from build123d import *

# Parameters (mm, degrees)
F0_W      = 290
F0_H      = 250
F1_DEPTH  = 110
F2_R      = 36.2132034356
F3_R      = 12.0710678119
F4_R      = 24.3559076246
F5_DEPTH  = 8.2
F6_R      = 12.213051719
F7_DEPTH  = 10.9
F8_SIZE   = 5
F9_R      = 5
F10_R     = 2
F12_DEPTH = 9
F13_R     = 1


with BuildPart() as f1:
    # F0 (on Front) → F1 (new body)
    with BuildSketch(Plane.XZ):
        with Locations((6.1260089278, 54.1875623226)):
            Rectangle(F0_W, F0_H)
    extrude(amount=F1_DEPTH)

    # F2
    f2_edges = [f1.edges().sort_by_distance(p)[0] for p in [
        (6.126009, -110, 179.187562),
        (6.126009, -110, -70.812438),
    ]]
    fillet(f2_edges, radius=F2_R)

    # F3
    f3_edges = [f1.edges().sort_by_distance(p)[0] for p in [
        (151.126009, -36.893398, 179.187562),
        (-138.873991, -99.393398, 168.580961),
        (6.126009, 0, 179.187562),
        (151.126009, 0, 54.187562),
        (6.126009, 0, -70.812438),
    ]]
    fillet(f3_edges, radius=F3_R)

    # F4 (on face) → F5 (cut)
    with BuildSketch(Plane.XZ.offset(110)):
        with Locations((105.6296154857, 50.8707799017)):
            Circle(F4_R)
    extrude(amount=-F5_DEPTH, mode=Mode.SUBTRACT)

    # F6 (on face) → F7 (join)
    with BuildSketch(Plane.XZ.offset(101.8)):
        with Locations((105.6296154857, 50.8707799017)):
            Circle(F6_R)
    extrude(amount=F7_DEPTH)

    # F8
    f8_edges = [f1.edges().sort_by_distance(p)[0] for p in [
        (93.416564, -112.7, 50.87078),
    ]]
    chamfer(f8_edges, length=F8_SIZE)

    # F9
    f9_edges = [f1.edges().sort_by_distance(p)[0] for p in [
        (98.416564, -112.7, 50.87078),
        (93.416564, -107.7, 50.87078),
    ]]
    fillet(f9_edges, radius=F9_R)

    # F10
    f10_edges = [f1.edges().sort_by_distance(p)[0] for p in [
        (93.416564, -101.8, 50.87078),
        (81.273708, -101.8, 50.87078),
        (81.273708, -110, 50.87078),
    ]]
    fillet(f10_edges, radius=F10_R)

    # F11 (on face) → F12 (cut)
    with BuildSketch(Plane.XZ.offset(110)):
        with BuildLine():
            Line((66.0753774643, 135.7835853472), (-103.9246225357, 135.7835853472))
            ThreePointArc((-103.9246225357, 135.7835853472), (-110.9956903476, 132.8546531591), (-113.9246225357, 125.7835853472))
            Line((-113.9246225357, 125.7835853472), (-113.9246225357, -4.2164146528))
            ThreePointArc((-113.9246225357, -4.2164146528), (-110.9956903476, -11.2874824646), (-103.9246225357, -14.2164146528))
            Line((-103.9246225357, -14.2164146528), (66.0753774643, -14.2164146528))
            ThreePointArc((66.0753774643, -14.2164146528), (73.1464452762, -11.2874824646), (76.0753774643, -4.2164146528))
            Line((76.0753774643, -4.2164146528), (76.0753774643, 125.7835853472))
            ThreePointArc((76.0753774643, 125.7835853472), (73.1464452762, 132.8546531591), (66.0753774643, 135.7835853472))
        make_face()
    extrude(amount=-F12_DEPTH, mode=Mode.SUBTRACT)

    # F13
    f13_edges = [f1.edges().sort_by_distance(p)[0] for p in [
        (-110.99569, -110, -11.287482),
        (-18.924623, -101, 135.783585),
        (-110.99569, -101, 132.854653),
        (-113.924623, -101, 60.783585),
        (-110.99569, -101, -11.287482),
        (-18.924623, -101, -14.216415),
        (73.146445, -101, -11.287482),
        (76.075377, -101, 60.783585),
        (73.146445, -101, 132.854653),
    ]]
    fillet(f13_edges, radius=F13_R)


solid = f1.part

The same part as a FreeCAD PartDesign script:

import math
import FreeCAD as App
import Part
import Sketcher

V = App.Vector


def edges_at(feature, points):
    """Names of the edges that pass closest to the given points."""
    edges = feature.Shape.Edges
    near = lambda p: min(range(len(edges)), key=lambda i: edges[i].distToShape(Part.Vertex(*p))[0])
    return sorted({f"Edge{near(p) + 1}" for p in points})

doc = App.newDocument("Part")
params = doc.addObject("Spreadsheet::Sheet", "Params")
for row, (alias, value) in enumerate([
    ("sketch1_width", "290 mm"),
    ("sketch1_height", "250 mm"),
    ("pad1_length", "110 mm"),
    ("fillet_radius", "36.213203 mm"),
    ("fillet2_radius", "12.071068 mm"),
    ("pocket1_length", "8.2 mm"),
    ("pad2_length", "10.9 mm"),
    ("chamfer_size", "5 mm"),
    ("fillet3_radius", "5 mm"),
    ("fillet4_radius", "2 mm"),
    ("sketch4_radius", "10 mm"),
    ("sketch4_width", "170 mm"),
    ("sketch4_height", "130 mm"),
    ("pocket2_length", "9 mm"),
    ("fillet5_radius", "1 mm"),
], start=1):
    params.set(f"A{row}", alias)
    params.set(f"B{row}", "=" + value)
    params.setAlias(f"B{row}", alias)

body = doc.addObject("PartDesign::Body", "Body")

# Sketch on XZ plane
sketch1 = body.newObject("Sketcher::SketchObject", "Sketch")
sketch1.AttachmentSupport = (doc.getObject("XZ_Plane"), [""])
sketch1.MapMode = "FlatFace"
sketch1.addGeometry([
    Part.LineSegment(V(-139, 179, 0), V(-139, -71, 0)),
    Part.LineSegment(V(-139, -71, 0), V(151, -71, 0)),
    Part.LineSegment(V(151, -71, 0), V(151, 179, 0)),
    Part.LineSegment(V(151, 179, 0), V(-139, 179, 0)),
], False)
sketch1.addConstraint([
    Sketcher.Constraint("Coincident", 0, 2, 1, 1),
    Sketcher.Constraint("Coincident", 1, 2, 2, 1),
    Sketcher.Constraint("Coincident", 2, 2, 3, 1),
    Sketcher.Constraint("Coincident", 3, 2, 0, 1),
    Sketcher.Constraint("Vertical", 0),
    Sketcher.Constraint("Horizontal", 1),
    Sketcher.Constraint("Vertical", 2),
    Sketcher.Constraint("Horizontal", 3),
    Sketcher.Constraint("DistanceX", 1, 1, 1, 2, 290.0),
    Sketcher.Constraint("DistanceY", 0, 2, 0, 1, 250.0),
    Sketcher.Constraint("DistanceX", 0, 2, -1, 1, 138.873991),
    Sketcher.Constraint("DistanceY", 0, 2, -1, 1, 70.812438),
])
sketch1.setExpression("Constraints[8]", "Params.sketch1_width")
sketch1.setExpression("Constraints[9]", "Params.sketch1_height")
pad1 = body.newObject("PartDesign::Pad", "Pad")
pad1.Profile = sketch1
pad1.setExpression("Length", "Params.pad1_length")
doc.recompute()

fillet = body.newObject("PartDesign::Fillet", "Fillet")
fillet.Base = (pad1, edges_at(pad1, [(6.126, -110, 179.188), (6.126, -110, -70.812)]))
fillet.setExpression("Radius", "Params.fillet_radius")
doc.recompute()

fillet2 = body.newObject("PartDesign::Fillet", "Fillet001")
fillet2.Base = (fillet, edges_at(fillet, [
    (151.126, -36.893, 179.188),
    (-138.874, -99.393, 168.581),
    (6.126, 0, 179.188),
    (151.126, 0, 54.188),
    (6.126, 0, -70.812),
]))
fillet2.setExpression("Radius", "Params.fillet2_radius")

# Sketch on XZ plane
sketch2 = body.newObject("Sketcher::SketchObject", "Sketch001")
sketch2.AttachmentSupport = (doc.getObject("XZ_Plane"), [""])
sketch2.MapMode = "FlatFace"
sketch2.AttachmentOffset = App.Placement(V(0, 0, 110), App.Rotation())
sketch2.addGeometry(Part.Circle(V(106, 51, 0), V(0, 0, 1), 24), False)
sketch2.addConstraint([
    Sketcher.Constraint("Diameter", 0, 48.711815),
    Sketcher.Constraint("DistanceY", -1, 1, 0, 3, 50.87078),
    Sketcher.Constraint("DistanceX", -1, 1, 0, 3, 105.629615),
])
pocket1 = body.newObject("PartDesign::Pocket", "Pocket")
pocket1.Profile = sketch2
pocket1.setExpression("Length", "Params.pocket1_length")

# Sketch on XZ plane
sketch3 = body.newObject("Sketcher::SketchObject", "Sketch002")
sketch3.AttachmentSupport = (doc.getObject("XZ_Plane"), [""])
sketch3.MapMode = "FlatFace"
sketch3.AttachmentOffset = App.Placement(V(0, 0, 101.8), App.Rotation())
sketch3.addGeometry(Part.Circle(V(106, 51, 0), V(0, 0, 1), 12), False)
sketch3.addConstraint([
    Sketcher.Constraint("Diameter", 0, 24.426103),
    Sketcher.Constraint("DistanceY", -1, 1, 0, 3, 50.87078),
    Sketcher.Constraint("DistanceX", -1, 1, 0, 3, 105.629615),
])
pad2 = body.newObject("PartDesign::Pad", "Pad001")
pad2.Profile = sketch3
pad2.setExpression("Length", "Params.pad2_length")
doc.recompute()

chamfer = body.newObject("PartDesign::Chamfer", "Chamfer")
chamfer.Base = (pad2, edges_at(pad2, [(93.417, -112.7, 50.871)]))
chamfer.setExpression("Size", "Params.chamfer_size")
doc.recompute()

fillet3 = body.newObject("PartDesign::Fillet", "Fillet002")
fillet3.Base = (chamfer, edges_at(chamfer, [(98.417, -112.7, 50.871), (93.417, -107.7, 50.871)]))
fillet3.setExpression("Radius", "Params.fillet3_radius")
doc.recompute()

fillet4 = body.newObject("PartDesign::Fillet", "Fillet003")
fillet4.Base = (fillet3, edges_at(fillet3, [(93.417, -101.8, 50.871), (81.274, -101.8, 50.871), (81.274, -110, 50.871)]))
fillet4.setExpression("Radius", "Params.fillet4_radius")

# Sketch on XZ plane
sketch4 = body.newObject("Sketcher::SketchObject", "Sketch003")
sketch4.AttachmentSupport = (doc.getObject("XZ_Plane"), [""])
sketch4.MapMode = "FlatFace"
sketch4.AttachmentOffset = App.Placement(V(0, 0, 110), App.Rotation())
sketch4.addGeometry([
    Part.LineSegment(V(66, 136, 0), V(-104, 136, 0)),  # 0
    Part.ArcOfCircle(Part.Circle(V(-104, 126, 0), V(0, 0, 1), 10), math.radians(90), math.radians(180)),  # 1
    Part.LineSegment(V(-114, 126, 0), V(-114, -4, 0)),  # 2
    Part.ArcOfCircle(Part.Circle(V(-104, -4, 0), V(0, 0, 1), 10), math.radians(180), math.radians(270)),  # 3
    Part.LineSegment(V(-104, -14, 0), V(66, -14, 0)),  # 4
    Part.ArcOfCircle(Part.Circle(V(66, -4, 0), V(0, 0, 1), 10), math.radians(-90), math.radians(0)),  # 5
    Part.LineSegment(V(76, -4, 0), V(76, 126, 0)),  # 6
    Part.ArcOfCircle(Part.Circle(V(66, 126, 0), V(0, 0, 1), 10), math.radians(0), math.radians(90)),  # 7
], False)
sketch4.addConstraint([
    Sketcher.Constraint("Tangent", 0, 2, 1, 1),
    Sketcher.Constraint("Tangent", 1, 2, 2, 1),
    Sketcher.Constraint("Tangent", 2, 2, 3, 1),
    Sketcher.Constraint("Tangent", 3, 2, 4, 1),
    Sketcher.Constraint("Tangent", 4, 2, 5, 1),
    Sketcher.Constraint("Tangent", 5, 2, 6, 1),
    Sketcher.Constraint("Tangent", 6, 2, 7, 1),
    Sketcher.Constraint("Tangent", 7, 2, 0, 1),
    Sketcher.Constraint("Horizontal", 0),
    Sketcher.Constraint("Vertical", 2),
    Sketcher.Constraint("Horizontal", 4),
    Sketcher.Constraint("Vertical", 6),
    Sketcher.Constraint("Equal", 1, 3),
    Sketcher.Constraint("Equal", 3, 5),
    Sketcher.Constraint("Equal", 5, 7),
    Sketcher.Constraint("Radius", 1, 10.0),
    Sketcher.Constraint("DistanceX", 0, 2, 0, 1, 170.0),
    Sketcher.Constraint("DistanceY", 2, 2, 2, 1, 130.0),
    Sketcher.Constraint("DistanceX", 1, 3, -1, 1, 103.924623),
    Sketcher.Constraint("DistanceY", -1, 1, 1, 3, 125.783585),
])
sketch4.setExpression("Constraints[15]", "Params.sketch4_radius")
sketch4.setExpression("Constraints[16]", "Params.sketch4_width")
sketch4.setExpression("Constraints[17]", "Params.sketch4_height")
pocket2 = body.newObject("PartDesign::Pocket", "Pocket001")
pocket2.Profile = sketch4
pocket2.setExpression("Length", "Params.pocket2_length")
doc.recompute()

fillet5 = body.newObject("PartDesign::Fillet", "Fillet004")
fillet5.Base = (pocket2, edges_at(pocket2, [
    (-110.996, -110, -11.287),
    (-18.925, -101, 135.784),
    (-110.996, -101, 132.855),
    (-113.925, -101, 60.784),
    (-110.996, -101, -11.287),
    (-18.925, -101, -14.216),
    (73.146, -101, -11.287),
    (76.075, -101, 60.784),
    (73.146, -101, 132.855),
]))
fillet5.setExpression("Radius", "Params.fillet5_radius")

doc.recompute()
